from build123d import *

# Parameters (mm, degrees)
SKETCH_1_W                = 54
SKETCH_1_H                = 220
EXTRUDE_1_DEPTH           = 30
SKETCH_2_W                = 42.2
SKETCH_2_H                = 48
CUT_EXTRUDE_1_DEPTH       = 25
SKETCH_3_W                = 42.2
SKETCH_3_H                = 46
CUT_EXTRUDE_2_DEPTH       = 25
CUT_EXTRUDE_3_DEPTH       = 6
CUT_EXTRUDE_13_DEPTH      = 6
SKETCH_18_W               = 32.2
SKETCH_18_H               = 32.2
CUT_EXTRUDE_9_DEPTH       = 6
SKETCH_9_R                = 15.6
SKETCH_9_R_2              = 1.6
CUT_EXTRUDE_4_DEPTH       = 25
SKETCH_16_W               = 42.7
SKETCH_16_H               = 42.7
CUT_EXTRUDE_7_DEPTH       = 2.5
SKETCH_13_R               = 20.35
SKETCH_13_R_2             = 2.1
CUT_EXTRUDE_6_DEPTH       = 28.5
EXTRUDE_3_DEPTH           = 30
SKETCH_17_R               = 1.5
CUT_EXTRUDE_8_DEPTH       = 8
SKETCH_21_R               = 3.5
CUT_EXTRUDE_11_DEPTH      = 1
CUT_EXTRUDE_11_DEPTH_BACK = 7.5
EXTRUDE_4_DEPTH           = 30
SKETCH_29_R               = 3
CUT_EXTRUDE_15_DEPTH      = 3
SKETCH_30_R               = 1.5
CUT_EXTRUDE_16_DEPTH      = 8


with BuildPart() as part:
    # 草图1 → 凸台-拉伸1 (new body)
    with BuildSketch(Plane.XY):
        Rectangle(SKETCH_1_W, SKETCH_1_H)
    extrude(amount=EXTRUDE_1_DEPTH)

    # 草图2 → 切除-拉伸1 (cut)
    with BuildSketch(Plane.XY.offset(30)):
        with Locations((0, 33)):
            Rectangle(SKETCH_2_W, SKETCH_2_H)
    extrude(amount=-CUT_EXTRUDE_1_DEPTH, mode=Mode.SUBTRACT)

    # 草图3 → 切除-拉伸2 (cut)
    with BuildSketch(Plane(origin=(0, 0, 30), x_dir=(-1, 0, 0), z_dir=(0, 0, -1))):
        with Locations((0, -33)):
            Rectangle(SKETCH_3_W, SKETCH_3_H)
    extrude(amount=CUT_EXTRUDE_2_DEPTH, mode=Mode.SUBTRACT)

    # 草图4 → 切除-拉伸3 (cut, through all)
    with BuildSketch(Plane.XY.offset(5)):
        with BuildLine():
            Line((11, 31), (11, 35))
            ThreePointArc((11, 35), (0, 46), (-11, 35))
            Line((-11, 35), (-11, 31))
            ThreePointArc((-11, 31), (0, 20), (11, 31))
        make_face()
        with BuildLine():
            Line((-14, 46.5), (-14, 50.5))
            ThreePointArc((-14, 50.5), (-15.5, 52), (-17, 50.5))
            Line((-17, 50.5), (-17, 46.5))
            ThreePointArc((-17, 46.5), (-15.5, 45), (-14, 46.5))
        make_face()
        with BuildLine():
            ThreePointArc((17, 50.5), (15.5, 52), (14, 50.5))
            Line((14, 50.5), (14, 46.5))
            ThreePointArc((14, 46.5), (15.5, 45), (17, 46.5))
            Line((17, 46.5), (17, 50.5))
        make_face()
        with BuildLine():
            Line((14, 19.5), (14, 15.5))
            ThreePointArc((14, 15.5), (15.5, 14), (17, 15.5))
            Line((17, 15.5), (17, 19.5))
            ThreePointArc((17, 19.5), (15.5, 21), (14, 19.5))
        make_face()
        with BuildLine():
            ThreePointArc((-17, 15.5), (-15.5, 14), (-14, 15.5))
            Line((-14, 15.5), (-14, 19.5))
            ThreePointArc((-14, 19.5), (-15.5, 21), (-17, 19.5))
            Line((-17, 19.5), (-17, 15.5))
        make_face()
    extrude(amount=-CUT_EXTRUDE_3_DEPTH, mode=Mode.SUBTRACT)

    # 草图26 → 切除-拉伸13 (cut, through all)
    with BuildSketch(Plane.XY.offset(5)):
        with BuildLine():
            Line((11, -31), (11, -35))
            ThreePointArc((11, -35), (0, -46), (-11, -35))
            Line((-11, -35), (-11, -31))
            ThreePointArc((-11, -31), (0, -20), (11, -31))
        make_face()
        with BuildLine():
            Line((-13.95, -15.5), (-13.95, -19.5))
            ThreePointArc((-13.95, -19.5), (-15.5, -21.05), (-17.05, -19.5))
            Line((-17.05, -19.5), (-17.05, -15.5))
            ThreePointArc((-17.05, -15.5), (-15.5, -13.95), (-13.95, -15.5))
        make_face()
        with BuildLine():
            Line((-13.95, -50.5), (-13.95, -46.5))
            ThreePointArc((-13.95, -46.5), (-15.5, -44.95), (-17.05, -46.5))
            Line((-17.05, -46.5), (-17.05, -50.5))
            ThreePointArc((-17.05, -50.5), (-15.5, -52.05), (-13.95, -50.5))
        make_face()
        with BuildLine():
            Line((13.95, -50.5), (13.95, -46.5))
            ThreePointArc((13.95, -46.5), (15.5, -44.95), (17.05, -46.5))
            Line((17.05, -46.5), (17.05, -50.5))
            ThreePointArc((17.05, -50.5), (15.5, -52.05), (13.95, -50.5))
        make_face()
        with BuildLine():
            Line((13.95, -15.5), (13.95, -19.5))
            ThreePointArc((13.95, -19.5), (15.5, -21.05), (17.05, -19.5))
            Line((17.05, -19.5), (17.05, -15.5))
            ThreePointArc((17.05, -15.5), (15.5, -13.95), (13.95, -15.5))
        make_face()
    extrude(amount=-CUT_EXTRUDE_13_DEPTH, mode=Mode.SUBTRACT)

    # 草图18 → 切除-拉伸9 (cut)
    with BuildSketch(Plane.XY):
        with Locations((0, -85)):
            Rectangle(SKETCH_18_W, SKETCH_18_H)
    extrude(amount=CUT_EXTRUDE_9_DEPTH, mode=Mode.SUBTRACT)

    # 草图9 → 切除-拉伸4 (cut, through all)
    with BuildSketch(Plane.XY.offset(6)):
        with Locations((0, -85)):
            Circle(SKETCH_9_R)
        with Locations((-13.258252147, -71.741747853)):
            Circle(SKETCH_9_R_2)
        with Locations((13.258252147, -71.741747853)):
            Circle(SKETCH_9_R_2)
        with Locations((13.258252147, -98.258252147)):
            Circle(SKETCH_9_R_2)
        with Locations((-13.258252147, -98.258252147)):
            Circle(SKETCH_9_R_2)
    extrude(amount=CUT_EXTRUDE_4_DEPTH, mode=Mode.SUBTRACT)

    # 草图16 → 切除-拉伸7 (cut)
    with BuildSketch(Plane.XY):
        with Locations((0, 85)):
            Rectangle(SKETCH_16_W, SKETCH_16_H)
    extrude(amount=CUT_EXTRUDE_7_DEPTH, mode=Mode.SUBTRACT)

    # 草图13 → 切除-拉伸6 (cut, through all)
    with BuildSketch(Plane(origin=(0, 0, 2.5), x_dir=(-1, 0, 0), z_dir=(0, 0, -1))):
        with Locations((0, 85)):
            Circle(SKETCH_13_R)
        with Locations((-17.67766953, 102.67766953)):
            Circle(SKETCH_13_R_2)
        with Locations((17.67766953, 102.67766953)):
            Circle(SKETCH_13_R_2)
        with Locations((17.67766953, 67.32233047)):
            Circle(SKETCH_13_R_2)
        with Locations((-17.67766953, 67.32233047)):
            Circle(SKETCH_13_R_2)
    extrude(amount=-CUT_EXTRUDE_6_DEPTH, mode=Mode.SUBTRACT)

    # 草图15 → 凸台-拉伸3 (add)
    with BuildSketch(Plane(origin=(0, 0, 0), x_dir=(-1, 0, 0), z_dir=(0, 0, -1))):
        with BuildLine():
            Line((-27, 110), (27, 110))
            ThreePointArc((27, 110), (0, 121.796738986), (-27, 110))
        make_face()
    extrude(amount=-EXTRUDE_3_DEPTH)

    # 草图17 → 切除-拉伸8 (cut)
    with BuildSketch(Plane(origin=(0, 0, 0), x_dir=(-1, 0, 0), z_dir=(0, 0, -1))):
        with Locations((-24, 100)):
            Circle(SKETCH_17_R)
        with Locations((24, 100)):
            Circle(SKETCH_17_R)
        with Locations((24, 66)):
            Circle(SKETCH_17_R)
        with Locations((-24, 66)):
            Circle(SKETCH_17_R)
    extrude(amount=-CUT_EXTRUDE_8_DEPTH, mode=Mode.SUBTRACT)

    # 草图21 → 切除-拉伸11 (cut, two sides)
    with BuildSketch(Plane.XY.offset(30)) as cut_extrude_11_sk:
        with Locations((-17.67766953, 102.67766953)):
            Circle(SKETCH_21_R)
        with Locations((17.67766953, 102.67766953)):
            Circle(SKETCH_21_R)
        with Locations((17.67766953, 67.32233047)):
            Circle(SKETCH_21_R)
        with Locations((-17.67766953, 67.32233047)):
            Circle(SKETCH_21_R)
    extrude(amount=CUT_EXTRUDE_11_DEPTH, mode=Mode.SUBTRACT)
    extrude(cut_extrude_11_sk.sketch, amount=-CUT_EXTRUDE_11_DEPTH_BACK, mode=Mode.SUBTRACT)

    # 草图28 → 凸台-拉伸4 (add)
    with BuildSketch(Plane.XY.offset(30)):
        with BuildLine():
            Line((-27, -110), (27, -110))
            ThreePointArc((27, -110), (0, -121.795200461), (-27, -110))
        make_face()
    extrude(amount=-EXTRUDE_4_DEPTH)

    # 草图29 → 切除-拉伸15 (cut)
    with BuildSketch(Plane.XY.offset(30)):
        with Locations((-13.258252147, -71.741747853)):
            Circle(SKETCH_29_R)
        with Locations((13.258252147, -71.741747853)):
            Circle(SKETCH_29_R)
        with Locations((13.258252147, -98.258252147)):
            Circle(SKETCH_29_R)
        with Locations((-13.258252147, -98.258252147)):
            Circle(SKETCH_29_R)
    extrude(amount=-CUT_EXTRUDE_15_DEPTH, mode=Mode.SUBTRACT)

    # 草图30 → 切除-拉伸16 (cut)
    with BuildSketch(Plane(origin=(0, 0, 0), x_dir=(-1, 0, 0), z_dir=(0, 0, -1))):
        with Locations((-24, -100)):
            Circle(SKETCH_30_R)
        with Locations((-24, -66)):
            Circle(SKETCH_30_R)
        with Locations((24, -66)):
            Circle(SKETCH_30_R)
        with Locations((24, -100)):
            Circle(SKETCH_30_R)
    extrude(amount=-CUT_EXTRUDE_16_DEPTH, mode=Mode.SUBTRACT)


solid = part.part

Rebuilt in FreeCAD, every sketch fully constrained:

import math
import FreeCAD as App
import Part
import Sketcher
Q = App.Units.Quantity

doc = App.newDocument("Part")
body = doc.addObject("PartDesign::Body", "Body")

# Sketch on XY plane
sketch1 = doc.addObject("Sketcher::SketchObject", "Sketch")
body.addObject(sketch1)
sketch1.AttachmentSupport = (doc.XY_Plane, [""])
sketch1.MapMode = "FlatFace"
sketch1.addGeometry([
    Part.LineSegment(App.Vector(-27, 110, 0), App.Vector(-27, -110, 0)),
    Part.LineSegment(App.Vector(-27, -110, 0), App.Vector(27, -110, 0)),
    Part.LineSegment(App.Vector(27, -110, 0), App.Vector(27, 110, 0)),
    Part.LineSegment(App.Vector(27, 110, 0), App.Vector(-27, 110, 0)),
], False)
sketch1.addConstraint([
    Sketcher.Constraint("Coincident", 0, 2, 1, 1),
    Sketcher.Constraint("Coincident", 1, 2, 2, 1),
    Sketcher.Constraint("Coincident", 2, 2, 3, 1),
    Sketcher.Constraint("Coincident", 3, 2, 0, 1),
    Sketcher.Constraint("Vertical", 0),
    Sketcher.Constraint("Horizontal", 1),
    Sketcher.Constraint("Vertical", 2),
    Sketcher.Constraint("Horizontal", 3),
    Sketcher.Constraint("Symmetric", 0, 2, 2, 2, -1, 1),
    Sketcher.Constraint("DistanceX", 1, 1, 1, 2, Q("54 mm")),
    Sketcher.Constraint("DistanceY", 0, 2, 0, 1, Q("220 mm")),
])
pad1 = doc.addObject("PartDesign::Pad", "Pad")
body.addObject(pad1)
pad1.Profile = sketch1
pad1.Length = 30

# Sketch on XY plane
sketch2 = doc.addObject("Sketcher::SketchObject", "Sketch001")
body.addObject(sketch2)
sketch2.AttachmentSupport = (doc.XY_Plane, [""])
sketch2.MapMode = "FlatFace"
sketch2.AttachmentOffset = App.Placement(App.Vector(0, 0, 30), App.Rotation())
sketch2.addGeometry([
    Part.LineSegment(App.Vector(-21, 57, 0), App.Vector(-21, 9, 0)),
    Part.LineSegment(App.Vector(-21, 9, 0), App.Vector(21, 9, 0)),
    Part.LineSegment(App.Vector(21, 9, 0), App.Vector(21, 57, 0)),
    Part.LineSegment(App.Vector(21, 57, 0), App.Vector(-21, 57, 0)),
], False)
sketch2.addConstraint([
    Sketcher.Constraint("Coincident", 0, 2, 1, 1),
    Sketcher.Constraint("Coincident", 1, 2, 2, 1),
    Sketcher.Constraint("Coincident", 2, 2, 3, 1),
    Sketcher.Constraint("Coincident", 3, 2, 0, 1),
    Sketcher.Constraint("Vertical", 0),
    Sketcher.Constraint("Horizontal", 1),
    Sketcher.Constraint("Vertical", 2),
    Sketcher.Constraint("Horizontal", 3),
    Sketcher.Constraint("DistanceY", 0, 2, 0, 1, Q("48 mm")),
    Sketcher.Constraint("DistanceX", 1, 1, 1, 2, Q("42.2 mm")),
    Sketcher.Constraint("DistanceY", -1, 1, 0, 2, Q("9 mm")),
    Sketcher.Constraint("DistanceX", 0, 2, -1, 1, Q("21.1 mm")),
])
pocket1 = doc.addObject("PartDesign::Pocket", "Pocket")
body.addObject(pocket1)
pocket1.Profile = sketch2
pocket1.Length = 25

# Sketch on XY plane
sketch3 = doc.addObject("Sketcher::SketchObject", "Sketch002")
body.addObject(sketch3)
sketch3.AttachmentSupport = (doc.XY_Plane, [""])
sketch3.MapMode = "FlatFace"
sketch3.AttachmentOffset = App.Placement(App.Vector(0, 0, 30), App.Rotation())
sketch3.addGeometry([
    Part.LineSegment(App.Vector(21, -10, 0), App.Vector(21, -56, 0)),
    Part.LineSegment(App.Vector(21, -56, 0), App.Vector(-21, -56, 0)),
    Part.LineSegment(App.Vector(-21, -56, 0), App.Vector(-21, -10, 0)),
    Part.LineSegment(App.Vector(-21, -10, 0), App.Vector(21, -10, 0)),
], False)
sketch3.addConstraint([
    Sketcher.Constraint("Coincident", 0, 2, 1, 1),
    Sketcher.Constraint("Coincident", 1, 2, 2, 1),
    Sketcher.Constraint("Coincident", 2, 2, 3, 1),
    Sketcher.Constraint("Coincident", 3, 2, 0, 1),
    Sketcher.Constraint("Vertical", 0),
    Sketcher.Constraint("Horizontal", 1),
    Sketcher.Constraint("Vertical", 2),
    Sketcher.Constraint("Horizontal", 3),
    Sketcher.Constraint("DistanceY", 0, 2, 0, 1, Q("46 mm")),
    Sketcher.Constraint("DistanceX", 1, 2, 1, 1, Q("42.2 mm")),
    Sketcher.Constraint("DistanceY", 0, 2, -1, 1, Q("56 mm")),
    Sketcher.Constraint("DistanceX", -1, 1, 0, 2, Q("21.1 mm")),
])
pocket2 = doc.addObject("PartDesign::Pocket", "Pocket001")
body.addObject(pocket2)
pocket2.Profile = sketch3
pocket2.Length = 25

# Sketch on XY plane
sketch4 = doc.addObject("Sketcher::SketchObject", "Sketch003")
body.addObject(sketch4)
sketch4.AttachmentSupport = (doc.XY_Plane, [""])
sketch4.MapMode = "FlatFace"
sketch4.AttachmentOffset = App.Placement(App.Vector(0, 0, 5), App.Rotation())
sketch4.addGeometry([
    Part.LineSegment(App.Vector(11, 31, 0), App.Vector(11, 35, 0)),  # 0
    Part.ArcOfCircle(Part.Circle(App.Vector(0, 35, 0), App.Vector(0, 0, 1), 11), math.radians(0), math.radians(180)),  # 1
    Part.LineSegment(App.Vector(-11, 35, 0), App.Vector(-11, 31, 0)),  # 2
    Part.ArcOfCircle(Part.Circle(App.Vector(0, 31, 0), App.Vector(0, 0, 1), 11), math.radians(180), math.radians(360)),  # 3
    Part.LineSegment(App.Vector(-14, 46.5, 0), App.Vector(-14, 50.5, 0)),  # 4
    Part.ArcOfCircle(Part.Circle(App.Vector(-15.5, 50.5, 0), App.Vector(0, 0, 1), 1.5), math.radians(0), math.radians(180)),  # 5
    Part.LineSegment(App.Vector(-17, 50.5, 0), App.Vector(-17, 46.5, 0)),  # 6
    Part.ArcOfCircle(Part.Circle(App.Vector(-15.5, 46.5, 0), App.Vector(0, 0, 1), 1.5), math.radians(180), math.radians(360)),  # 7
    Part.ArcOfCircle(Part.Circle(App.Vector(15.5, 50.5, 0), App.Vector(0, 0, 1), 1.5), math.radians(0), math.radians(180)),  # 8
    Part.LineSegment(App.Vector(14, 50.5, 0), App.Vector(14, 46.5, 0)),  # 9
    Part.ArcOfCircle(Part.Circle(App.Vector(15.5, 46.5, 0), App.Vector(0, 0, 1), 1.5), math.radians(180), math.radians(360)),  # 10
    Part.LineSegment(App.Vector(17, 46.5, 0), App.Vector(17, 50.5, 0)),  # 11
    Part.LineSegment(App.Vector(14, 19.5, 0), App.Vector(14, 15.5, 0)),  # 12
    Part.ArcOfCircle(Part.Circle(App.Vector(15.5, 15.5, 0), App.Vector(0, 0, 1), 1.5), math.radians(180), math.radians(360)),  # 13
    Part.LineSegment(App.Vector(17, 15.5, 0), App.Vector(17, 19.5, 0)),  # 14
    Part.ArcOfCircle(Part.Circle(App.Vector(15.5, 19.5, 0), App.Vector(0, 0, 1), 1.5), math.radians(0), math.radians(180)),  # 15
    Part.ArcOfCircle(Part.Circle(App.Vector(-15.5, 15.5, 0), App.Vector(0, 0, 1), 1.5), math.radians(180), math.radians(360)),  # 16
    Part.LineSegment(App.Vector(-14, 15.5, 0), App.Vector(-14, 19.5, 0)),  # 17
    Part.ArcOfCircle(Part.Circle(App.Vector(-15.5, 19.5, 0), App.Vector(0, 0, 1), 1.5), math.radians(0), math.radians(180)),  # 18
    Part.LineSegment(App.Vector(-17, 19.5, 0), App.Vector(-17, 15.5, 0)),  # 19
], False)
sketch4.addConstraint([
    Sketcher.Constraint("Tangent", 0, 2, 1, 1),
    Sketcher.Constraint("Tangent", 1, 2, 2, 1),
    Sketcher.Constraint("Tangent", 2, 2, 3, 1),
    Sketcher.Constraint("Tangent", 3, 2, 0, 1),
    Sketcher.Constraint("Tangent", 4, 2, 5, 1),
    Sketcher.Constraint("Tangent", 5, 2, 6, 1),
    Sketcher.Constraint("Tangent", 6, 2, 7, 1),
    Sketcher.Constraint("Tangent", 7, 2, 4, 1),
    Sketcher.Constraint("Tangent", 8, 2, 9, 1),
    Sketcher.Constraint("Tangent", 9, 2, 10, 1),
    Sketcher.Constraint("Tangent", 10, 2, 11, 1),
    Sketcher.Constraint("Tangent", 11, 2, 8, 1),
    Sketcher.Constraint("Tangent", 12, 2, 13, 1),
    Sketcher.Constraint("Tangent", 13, 2, 14, 1),
    Sketcher.Constraint("Tangent", 14, 2, 15, 1),
    Sketcher.Constraint("Tangent", 15, 2, 12, 1),
    Sketcher.Constraint("Tangent", 16, 2, 17, 1),
    Sketcher.Constraint("Tangent", 17, 2, 18, 1),
    Sketcher.Constraint("Tangent", 18, 2, 19, 1),
    Sketcher.Constraint("Tangent", 19, 2, 16, 1),
    Sketcher.Constraint("Vertical", 0),
    Sketcher.Constraint("Vertical", 2),
    Sketcher.Constraint("Vertical", 4),
    Sketcher.Constraint("Vertical", 6),
    Sketcher.Constraint("Vertical", 9),
    Sketcher.Constraint("Vertical", 11),
    Sketcher.Constraint("Vertical", 12),
    Sketcher.Constraint("Vertical", 14),
    Sketcher.Constraint("Vertical", 17),
    Sketcher.Constraint("Vertical", 19),
    Sketcher.Constraint("Equal", 7, 8),
    Sketcher.Constraint("Equal", 10, 13),
    Sketcher.Constraint("Equal", 15, 16),
    Sketcher.Constraint("Symmetric", 5, 3, 8, 3, -2),
    Sketcher.Constraint("Symmetric", 13, 3, 16, 3, -2),
    Sketcher.Constraint("PointOnObject", 1, 3, -2),
    Sketcher.Constraint("Horizontal", 7, 3, 10, 3),
    Sketcher.Constraint("Horizontal", 15, 3, 18, 3),
    Sketcher.Constraint("Vertical", 10, 3, 13, 3),
    Sketcher.Constraint("Equal", 2, 4),
    Sketcher.Constraint("Equal", 11, 12),
    Sketcher.Constraint("Radius", 1, Q("11 mm")),
    Sketcher.Constraint("Radius", 5, Q("1.5 mm")),
    Sketcher.Constraint("DistanceY", 0, 1, 0, 2, Q("4 mm")),
    Sketcher.Constraint("DistanceY", -1, 1, 1, 3, Q("35 mm")),
    Sketcher.Constraint("DistanceX", 4, 2, -1, 1, Q("14 mm")),
    Sketcher.Constraint("DistanceY", 13, 3, 10, 3, Q("31 mm")),
    Sketcher.Constraint("DistanceY", -1, 1, 5, 3, Q("50.5 mm")),
])
pocket3 = doc.addObject("PartDesign::Pocket", "Pocket002")
body.addObject(pocket3)
pocket3.Profile = sketch4
pocket3.Type = "ThroughAll"

# Sketch on XY plane
sketch5 = doc.addObject("Sketcher::SketchObject", "Sketch004")
body.addObject(sketch5)
sketch5.AttachmentSupport = (doc.XY_Plane, [""])
sketch5.MapMode = "FlatFace"
sketch5.AttachmentOffset = App.Placement(App.Vector(0, 0, 5), App.Rotation())
sketch5.addGeometry([
    Part.LineSegment(App.Vector(11, -35, 0), App.Vector(11, -31, 0)),  # 0
    Part.ArcOfCircle(Part.Circle(App.Vector(0, -31, 0), App.Vector(0, 0, 1), 11), math.radians(0), math.radians(180)),  # 1
    Part.LineSegment(App.Vector(-11, -31, 0), App.Vector(-11, -35, 0)),  # 2
    Part.ArcOfCircle(Part.Circle(App.Vector(0, -35, 0), App.Vector(0, 0, 1), 11), math.radians(180), math.radians(360)),  # 3
    Part.LineSegment(App.Vector(-13.9, -19.5, 0), App.Vector(-13.9, -15.5, 0)),  # 4
    Part.ArcOfCircle(Part.Circle(App.Vector(-15.5, -15.5, 0), App.Vector(0, 0, 1), 1.6), math.radians(0), math.radians(180)),  # 5
    Part.LineSegment(App.Vector(-17.1, -15.5, 0), App.Vector(-17.1, -19.5, 0)),  # 6
    Part.ArcOfCircle(Part.Circle(App.Vector(-15.5, -19.5, 0), App.Vector(0, 0, 1), 1.6), math.radians(180), math.radians(360)),  # 7
    Part.LineSegment(App.Vector(-13.9, -50.5, 0), App.Vector(-13.9, -46.5, 0)),  # 8
    Part.ArcOfCircle(Part.Circle(App.Vector(-15.5, -46.5, 0), App.Vector(0, 0, 1), 1.6), math.radians(0), math.radians(180)),  # 9
    Part.LineSegment(App.Vector(-17.1, -46.5, 0), App.Vector(-17.1, -50.5, 0)),  # 10
    Part.ArcOfCircle(Part.Circle(App.Vector(-15.5, -50.5, 0), App.Vector(0, 0, 1), 1.6), math.radians(180), math.radians(360)),  # 11
    Part.LineSegment(App.Vector(13.9, -46.5, 0), App.Vector(13.9, -50.5, 0)),  # 12
    Part.ArcOfCircle(Part.Circle(App.Vector(15.5, -50.5, 0), App.Vector(0, 0, 1), 1.6), math.radians(180), math.radians(360)),  # 13
    Part.LineSegment(App.Vector(17.1, -50.5, 0), App.Vector(17.1, -46.5, 0)),  # 14
    Part.ArcOfCircle(Part.Circle(App.Vector(15.5, -46.5, 0), App.Vector(0, 0, 1), 1.6), math.radians(0), math.radians(180)),  # 15
    Part.LineSegment(App.Vector(13.9, -15.5, 0), App.Vector(13.9, -19.5, 0)),  # 16
    Part.ArcOfCircle(Part.Circle(App.Vector(15.5, -19.5, 0), App.Vector(0, 0, 1), 1.6), math.radians(180), math.radians(360)),  # 17
    Part.LineSegment(App.Vector(17.1, -19.5, 0), App.Vector(17.1, -15.5, 0)),  # 18
    Part.ArcOfCircle(Part.Circle(App.Vector(15.5, -15.5, 0), App.Vector(0, 0, 1), 1.6), math.radians(0), math.radians(180)),  # 19
], False)
sketch5.addConstraint([
    Sketcher.Constraint("Tangent", 0, 2, 1, 1),
    Sketcher.Constraint("Tangent", 1, 2, 2, 1),
    Sketcher.Constraint("Tangent", 2, 2, 3, 1),
    Sketcher.Constraint("Tangent", 3, 2, 0, 1),
    Sketcher.Constraint("Tangent", 4, 2, 5, 1),
    Sketcher.Constraint("Tangent", 5, 2, 6, 1),
    Sketcher.Constraint("Tangent", 6, 2, 7, 1),
    Sketcher.Constraint("Tangent", 7, 2, 4, 1),
    Sketcher.Constraint("Tangent", 8, 2, 9, 1),
    Sketcher.Constraint("Tangent", 9, 2, 10, 1),
    Sketcher.Constraint("Tangent", 10, 2, 11, 1),
    Sketcher.Constraint("Tangent", 11, 2, 8, 1),
    Sketcher.Constraint("Tangent", 12, 2, 13, 1),
    Sketcher.Constraint("Tangent", 13, 2, 14, 1),
    Sketcher.Constraint("Tangent", 14, 2, 15, 1),
    Sketcher.Constraint("Tangent", 15, 2, 12, 1),
    Sketcher.Constraint("Tangent", 16, 2, 17, 1),
    Sketcher.Constraint("Tangent", 17, 2, 18, 1),
    Sketcher.Constraint("Tangent", 18, 2, 19, 1),
    Sketcher.Constraint("Tangent", 19, 2, 16, 1),
    Sketcher.Constraint("Vertical", 0),
    Sketcher.Constraint("Vertical", 2),
    Sketcher.Constraint("Vertical", 4),
    Sketcher.Constraint("Vertical", 6),
    Sketcher.Constraint("Vertical", 8),
    Sketcher.Constraint("Vertical", 10),
    Sketcher.Constraint("Vertical", 12),
    Sketcher.Constraint("Vertical", 14),
    Sketcher.Constraint("Vertical", 16),
    Sketcher.Constraint("Vertical", 18),
    Sketcher.Constraint("Equal", 7, 9),
    Sketcher.Constraint("Equal", 11, 13),
    Sketcher.Constraint("Equal", 15, 17),
    Sketcher.Constraint("Symmetric", 11, 3, 13, 3, -2),
    Sketcher.Constraint("Symmetric", 7, 3, 17, 3, -2),
    Sketcher.Constraint("PointOnObject", 1, 3, -2),
    Sketcher.Constraint("Horizontal", 9, 3, 15, 3),
    Sketcher.Constraint("Horizontal", 5, 3, 19, 3),
    Sketcher.Constraint("Vertical", 7, 3, 9, 3),
    Sketcher.Constraint("Equal", 2, 4),
    Sketcher.Constraint("Equal", 6, 8),
    Sketcher.Constraint("Radius", 1, Q("11 mm")),
    Sketcher.Constraint("DistanceY", 0, 1, 0, 2, Q("4 mm")),
    Sketcher.Constraint("Radius", 5, Q("1.55 mm")),
    Sketcher.Constraint("DistanceY", 1, 3, -1, 1, Q("31 mm")),
    Sketcher.Constraint("DistanceY", 9, 3, 7, 3, Q("27 mm")),
    Sketcher.Constraint("DistanceX", 11, 3, 13, 3, Q("31 mm")),
    Sketcher.Constraint("DistanceY", 5, 3, -1, 1, Q("15.5 mm")),
])
pocket4 = doc.addObject("PartDesign::Pocket", "Pocket003")
body.addObject(pocket4)
pocket4.Profile = sketch5
pocket4.Type = "ThroughAll"

# Sketch on XY plane
sketch6 = doc.addObject("Sketcher::SketchObject", "Sketch005")
body.addObject(sketch6)
sketch6.AttachmentSupport = (doc.XY_Plane, [""])
sketch6.MapMode = "FlatFace"
sketch6.addGeometry([
    Part.LineSegment(App.Vector(-16, -69, 0), App.Vector(-16, -101, 0)),
    Part.LineSegment(App.Vector(-16, -101, 0), App.Vector(16, -101, 0)),
    Part.LineSegment(App.Vector(16, -101, 0), App.Vector(16, -69, 0)),
    Part.LineSegment(App.Vector(16, -69, 0), App.Vector(-16, -69, 0)),
], False)
sketch6.addConstraint([
    Sketcher.Constraint("Coincident", 0, 2, 1, 1),
    Sketcher.Constraint("Coincident", 1, 2, 2, 1),
    Sketcher.Constraint("Coincident", 2, 2, 3, 1),
    Sketcher.Constraint("Coincident", 3, 2, 0, 1),
    Sketcher.Constraint("Vertical", 0),
    Sketcher.Constraint("Horizontal", 1),
    Sketcher.Constraint("Vertical", 2),
    Sketcher.Constraint("Horizontal", 3),
    Sketcher.Constraint("Equal", 3, 0),
    Sketcher.Constraint("DistanceX", 1, 1, 1, 2, Q("32.2 mm")),
    Sketcher.Constraint("DistanceX", 0, 2, -1, 1, Q("16.1 mm")),
    Sketcher.Constraint("DistanceY", 0, 2, -1, 1, Q("101.1 mm")),
])
pocket5 = doc.addObject("PartDesign::Pocket", "Pocket004")
body.addObject(pocket5)
pocket5.Profile = sketch6
pocket5.Length = 6
pocket5.Reversed = True

# Sketch on XY plane
sketch7 = doc.addObject("Sketcher::SketchObject", "Sketch006")
body.addObject(sketch7)
sketch7.AttachmentSupport = (doc.XY_Plane, [""])
sketch7.MapMode = "FlatFace"
sketch7.AttachmentOffset = App.Placement(App.Vector(0, 0, 6), App.Rotation())
sketch7.addGeometry([
    Part.Circle(App.Vector(0, -85, 0), App.Vector(0, 0, 1), 15.6),  # 0
    Part.Circle(App.Vector(-13.3, -71.7, 0), App.Vector(0, 0, 1), 1.6),  # 1
    Part.Circle(App.Vector(13.3, -71.7, 0), App.Vector(0, 0, 1), 1.6),  # 2
    Part.Circle(App.Vector(13.3, -98.3, 0), App.Vector(0, 0, 1), 1.6),  # 3
    Part.Circle(App.Vector(-13.3, -98.3, 0), App.Vector(0, 0, 1), 1.6),  # 4
], False)
sketch7.addConstraint([
    Sketcher.Constraint("Equal", 1, 2),
    Sketcher.Constraint("Equal", 2, 3),
    Sketcher.Constraint("Equal", 3, 4),
    Sketcher.Constraint("Symmetric", 1, 3, 2, 3, -2),
    Sketcher.Constraint("Symmetric", 3, 3, 4, 3, -2),
    Sketcher.Constraint("PointOnObject", 0, 3, -2),
    Sketcher.Constraint("Vertical", 2, 3, 3, 3),
    Sketcher.Constraint("Diameter", 0, Q("31.2 mm")),
    Sketcher.Constraint("Diameter", 1, Q("3.2 mm")),
    Sketcher.Constraint("DistanceY", 0, 3, -1, 1, Q("85 mm")),
    Sketcher.Constraint("DistanceX", 1, 3, -1, 1, Q("13.258252 mm")),
    Sketcher.Constraint("DistanceY", 1, 3, -1, 1, Q("71.741748 mm")),
    Sketcher.Constraint("DistanceY", 3, 3, -1, 1, Q("98.258252 mm")),
])
pocket6 = doc.addObject("PartDesign::Pocket", "Pocket005")
body.addObject(pocket6)
pocket6.Profile = sketch7
pocket6.Type = "ThroughAll"
pocket6.Reversed = True

# Sketch on XY plane
sketch8 = doc.addObject("Sketcher::SketchObject", "Sketch007")
body.addObject(sketch8)
sketch8.AttachmentSupport = (doc.XY_Plane, [""])
sketch8.MapMode = "FlatFace"
sketch8.addGeometry([
    Part.LineSegment(App.Vector(-21, 106, 0), App.Vector(-21, 64, 0)),
    Part.LineSegment(App.Vector(-21, 64, 0), App.Vector(21, 64, 0)),
    Part.LineSegment(App.Vector(21, 64, 0), App.Vector(21, 106, 0)),
    Part.LineSegment(App.Vector(21, 106, 0), App.Vector(-21, 106, 0)),
], False)
sketch8.addConstraint([
    Sketcher.Constraint("Coincident", 0, 2, 1, 1),
    Sketcher.Constraint("Coincident", 1, 2, 2, 1),
    Sketcher.Constraint("Coincident", 2, 2, 3, 1),
    Sketcher.Constraint("Coincident", 3, 2, 0, 1),
    Sketcher.Constraint("Vertical", 0),
    Sketcher.Constraint("Horizontal", 1),
    Sketcher.Constraint("Vertical", 2),
    Sketcher.Constraint("Horizontal", 3),
    Sketcher.Constraint("Equal", 3, 0),
    Sketcher.Constraint("DistanceX", 1, 1, 1, 2, Q("42.7 mm")),
    Sketcher.Constraint("DistanceX", 0, 2, -1, 1, Q("21.35 mm")),
    Sketcher.Constraint("DistanceY", -1, 1, 0, 2, Q("63.65 mm")),
])
pocket7 = doc.addObject("PartDesign::Pocket", "Pocket006")
body.addObject(pocket7)
pocket7.Profile = sketch8
pocket7.Length = 2.5
pocket7.Reversed = True

# Sketch on XY plane
sketch9 = doc.addObject("Sketcher::SketchObject", "Sketch008")
body.addObject(sketch9)
sketch9.AttachmentSupport = (doc.XY_Plane, [""])
sketch9.MapMode = "FlatFace"
sketch9.AttachmentOffset = App.Placement(App.Vector(0, 0, 2.5), App.Rotation())
sketch9.addGeometry([
    Part.Circle(App.Vector(0, 85, 0), App.Vector(0, 0, 1), 20.4),  # 0
    Part.Circle(App.Vector(17.7, 102.7, 0), App.Vector(0, 0, 1), 2.1),  # 1
    Part.Circle(App.Vector(-17.7, 102.7, 0), App.Vector(0, 0, 1), 2.1),  # 2
    Part.Circle(App.Vector(-17.7, 67.3, 0), App.Vector(0, 0, 1), 2.1),  # 3
    Part.Circle(App.Vector(17.7, 67.3, 0), App.Vector(0, 0, 1), 2.1),  # 4
], False)
sketch9.addConstraint([
    Sketcher.Constraint("Equal", 1, 2),
    Sketcher.Constraint("Equal", 2, 3),
    Sketcher.Constraint("Equal", 3, 4),
    Sketcher.Constraint("Symmetric", 1, 3, 2, 3, -2),
    Sketcher.Constraint("Symmetric", 3, 3, 4, 3, -2),
    Sketcher.Constraint("PointOnObject", 0, 3, -2),
    Sketcher.Constraint("Vertical", 2, 3, 3, 3),
    Sketcher.Constraint("Diameter", 0, Q("40.7 mm")),
    Sketcher.Constraint("Diameter", 1, Q("4.2 mm")),
    Sketcher.Constraint("DistanceY", -1, 1, 0, 3, Q("85 mm")),
    Sketcher.Constraint("DistanceX", -1, 1, 1, 3, Q("17.67767 mm")),
    Sketcher.Constraint("DistanceY", -1, 1, 1, 3, Q("102.67767 mm")),
    Sketcher.Constraint("DistanceY", -1, 1, 3, 3, Q("67.32233 mm")),
])
pocket8 = doc.addObject("PartDesign::Pocket", "Pocket007")
body.addObject(pocket8)
pocket8.Profile = sketch9
pocket8.Type = "ThroughAll"
pocket8.Reversed = True

# Sketch on XY plane
sketch10 = doc.addObject("Sketcher::SketchObject", "Sketch009")
body.addObject(sketch10)
sketch10.AttachmentSupport = (doc.XY_Plane, [""])
sketch10.MapMode = "FlatFace"
sketch10.addGeometry([
    Part.LineSegment(App.Vector(27, 110, 0), App.Vector(-27, 110, 0)),
    Part.ArcOfCircle(Part.Circle(App.Vector(0, 85, 0), App.Vector(0, 0, 1), 37), math.radians(43), math.radians(137)),
], False)
sketch10.addConstraint([
    Sketcher.Constraint("Coincident", 0, 1, 1, 1),
    Sketcher.Constraint("Coincident", 1, 2, 0, 2),
    Sketcher.Constraint("Horizontal", 0),
    Sketcher.Constraint("PointOnObject", 1, 3, -2),
    Sketcher.Constraint("DistanceX", 0, 2, 0, 1, Q("54 mm")),
    Sketcher.Constraint("DistanceY", -1, 1, 1, 3, Q("85 mm")),
    Sketcher.Constraint("DistanceY", -1, 1, 0, 1, Q("110 mm")),
])
pad2 = doc.addObject("PartDesign::Pad", "Pad001")
body.addObject(pad2)
pad2.Profile = sketch10
pad2.Length = 30

# Sketch on XY plane
sketch11 = doc.addObject("Sketcher::SketchObject", "Sketch010")
body.addObject(sketch11)
sketch11.AttachmentSupport = (doc.XY_Plane, [""])
sketch11.MapMode = "FlatFace"
sketch11.addGeometry([
    Part.Circle(App.Vector(24, 100, 0), App.Vector(0, 0, 1), 1.5),
    Part.Circle(App.Vector(-24, 100, 0), App.Vector(0, 0, 1), 1.5),
    Part.Circle(App.Vector(-24, 66, 0), App.Vector(0, 0, 1), 1.5),
    Part.Circle(App.Vector(24, 66, 0), App.Vector(0, 0, 1), 1.5),
], False)
sketch11.addConstraint([
    Sketcher.Constraint("Equal", 0, 1),
    Sketcher.Constraint("Equal", 1, 2),
    Sketcher.Constraint("Equal", 2, 3),
    Sketcher.Constraint("Symmetric", 0, 3, 1, 3, -2),
    Sketcher.Constraint("Symmetric", 2, 3, 3, 3, -2),
    Sketcher.Constraint("Vertical", 1, 3, 2, 3),
    Sketcher.Constraint("Diameter", 0, Q("3 mm")),
    Sketcher.Constraint("DistanceX", -1, 1, 0, 3, Q("24 mm")),
    Sketcher.Constraint("DistanceY", -1, 1, 0, 3, Q("100 mm")),
    Sketcher.Constraint("DistanceY", -1, 1, 2, 3, Q("66 mm")),
])
pocket9 = doc.addObject("PartDesign::Pocket", "Pocket008")
body.addObject(pocket9)
pocket9.Profile = sketch11
pocket9.Length = 8
pocket9.Reversed = True

# Sketch on XY plane
sketch12 = doc.addObject("Sketcher::SketchObject", "Sketch011")
body.addObject(sketch12)
sketch12.AttachmentSupport = (doc.XY_Plane, [""])
sketch12.MapMode = "FlatFace"
sketch12.AttachmentOffset = App.Placement(App.Vector(0, 0, 30), App.Rotation())
sketch12.addGeometry([
    Part.Circle(App.Vector(-17.7, 102.7, 0), App.Vector(0, 0, 1), 3.5),
    Part.Circle(App.Vector(17.7, 102.7, 0), App.Vector(0, 0, 1), 3.5),
    Part.Circle(App.Vector(17.7, 67.3, 0), App.Vector(0, 0, 1), 3.5),
    Part.Circle(App.Vector(-17.7, 67.3, 0), App.Vector(0, 0, 1), 3.5),
], False)
sketch12.addConstraint([
    Sketcher.Constraint("Equal", 0, 1),
    Sketcher.Constraint("Equal", 1, 2),
    Sketcher.Constraint("Equal", 2, 3),
    Sketcher.Constraint("Symmetric", 0, 3, 1, 3, -2),
    Sketcher.Constraint("Symmetric", 2, 3, 3, 3, -2),
    Sketcher.Constraint("Vertical", 1, 3, 2, 3),
    Sketcher.Constraint("Diameter", 0, Q("7 mm")),
    Sketcher.Constraint("DistanceX", 0, 3, -1, 1, Q("17.67767 mm")),
    Sketcher.Constraint("DistanceY", -1, 1, 0, 3, Q("102.67767 mm")),
    Sketcher.Constraint("DistanceY", -1, 1, 2, 3, Q("67.32233 mm")),
])
pocket10 = doc.addObject("PartDesign::Pocket", "Pocket009")
body.addObject(pocket10)
pocket10.Profile = sketch12
pocket10.Type = "TwoLengths"
pocket10.Length = 1
pocket10.Length2 = 7.5
pocket10.Reversed = True

# Sketch on XY plane
sketch13 = doc.addObject("Sketcher::SketchObject", "Sketch012")
body.addObject(sketch13)
sketch13.AttachmentSupport = (doc.XY_Plane, [""])
sketch13.MapMode = "FlatFace"
sketch13.AttachmentOffset = App.Placement(App.Vector(0, 0, 30), App.Rotation())
sketch13.addGeometry([
    Part.LineSegment(App.Vector(27, -110, 0), App.Vector(-27, -110, 0)),
    Part.ArcOfCircle(Part.Circle(App.Vector(0, -85, 0), App.Vector(0, 0, 1), 37), math.radians(-137), math.radians(-43)),
], False)
sketch13.addConstraint([
    Sketcher.Constraint("Coincident", 0, 1, 1, 2),
    Sketcher.Constraint("Coincident", 1, 1, 0, 2),
    Sketcher.Constraint("Horizontal", 0),
    Sketcher.Constraint("PointOnObject", 1, 3, -2),
    Sketcher.Constraint("Radius", 1, Q("36.8 mm")),
    Sketcher.Constraint("DistanceX", 0, 2, 0, 1, Q("54 mm")),
    Sketcher.Constraint("DistanceY", 0, 1, -1, 1, Q("110 mm")),
])
pad3 = doc.addObject("PartDesign::Pad", "Pad002")
body.addObject(pad3)
pad3.Profile = sketch13
pad3.Length = 30
pad3.Reversed = True

# Sketch on XY plane
sketch14 = doc.addObject("Sketcher::SketchObject", "Sketch013")
body.addObject(sketch14)
sketch14.AttachmentSupport = (doc.XY_Plane, [""])
sketch14.MapMode = "FlatFace"
sketch14.AttachmentOffset = App.Placement(App.Vector(0, 0, 30), App.Rotation())
sketch14.addGeometry([
    Part.Circle(App.Vector(-13.3, -71.7, 0), App.Vector(0, 0, 1), 3),
    Part.Circle(App.Vector(13.3, -71.7, 0), App.Vector(0, 0, 1), 3),
    Part.Circle(App.Vector(13.3, -98.3, 0), App.Vector(0, 0, 1), 3),
    Part.Circle(App.Vector(-13.3, -98.3, 0), App.Vector(0, 0, 1), 3),
], False)
sketch14.addConstraint([
    Sketcher.Constraint("Equal", 0, 1),
    Sketcher.Constraint("Equal", 1, 2),
    Sketcher.Constraint("Equal", 2, 3),
    Sketcher.Constraint("Symmetric", 0, 3, 1, 3, -2),
    Sketcher.Constraint("Symmetric", 2, 3, 3, 3, -2),
    Sketcher.Constraint("Vertical", 1, 3, 2, 3),
    Sketcher.Constraint("Diameter", 0, Q("6 mm")),
    Sketcher.Constraint("DistanceX", 0, 3, -1, 1, Q("13.258252 mm")),
    Sketcher.Constraint("DistanceY", 0, 3, -1, 1, Q("71.741748 mm")),
    Sketcher.Constraint("DistanceY", 2, 3, -1, 1, Q("98.258252 mm")),
])
pocket11 = doc.addObject("PartDesign::Pocket", "Pocket010")
body.addObject(pocket11)
pocket11.Profile = sketch14
pocket11.Length = 3

# Sketch on XY plane
sketch15 = doc.addObject("Sketcher::SketchObject", "Sketch014")
body.addObject(sketch15)
sketch15.AttachmentSupport = (doc.XY_Plane, [""])
sketch15.MapMode = "FlatFace"
sketch15.addGeometry([
    Part.Circle(App.Vector(24, -100, 0), App.Vector(0, 0, 1), 1.5),
    Part.Circle(App.Vector(24, -66, 0), App.Vector(0, 0, 1), 1.5),
    Part.Circle(App.Vector(-24, -66, 0), App.Vector(0, 0, 1), 1.5),
    Part.Circle(App.Vector(-24, -100, 0), App.Vector(0, 0, 1), 1.5),
], False)
sketch15.addConstraint([
    Sketcher.Constraint("Equal", 0, 1),
    Sketcher.Constraint("Equal", 1, 2),
    Sketcher.Constraint("Equal", 2, 3),
    Sketcher.Constraint("Symmetric", 1, 3, 2, 3, -2),
    Sketcher.Constraint("Symmetric", 0, 3, 3, 3, -2),
    Sketcher.Constraint("Vertical", 0, 3, 1, 3),
    Sketcher.Constraint("Diameter", 0, Q("3 mm")),
    Sketcher.Constraint("DistanceX", -1, 1, 0, 3, Q("24 mm")),
    Sketcher.Constraint("DistanceY", 0, 3, -1, 1, Q("100 mm")),
    Sketcher.Constraint("DistanceY", 1, 3, -1, 1, Q("66 mm")),
])
pocket12 = doc.addObject("PartDesign::Pocket", "Pocket011")
body.addObject(pocket12)
pocket12.Profile = sketch15
pocket12.Length = 8
pocket12.Reversed = True

doc.recompute()
